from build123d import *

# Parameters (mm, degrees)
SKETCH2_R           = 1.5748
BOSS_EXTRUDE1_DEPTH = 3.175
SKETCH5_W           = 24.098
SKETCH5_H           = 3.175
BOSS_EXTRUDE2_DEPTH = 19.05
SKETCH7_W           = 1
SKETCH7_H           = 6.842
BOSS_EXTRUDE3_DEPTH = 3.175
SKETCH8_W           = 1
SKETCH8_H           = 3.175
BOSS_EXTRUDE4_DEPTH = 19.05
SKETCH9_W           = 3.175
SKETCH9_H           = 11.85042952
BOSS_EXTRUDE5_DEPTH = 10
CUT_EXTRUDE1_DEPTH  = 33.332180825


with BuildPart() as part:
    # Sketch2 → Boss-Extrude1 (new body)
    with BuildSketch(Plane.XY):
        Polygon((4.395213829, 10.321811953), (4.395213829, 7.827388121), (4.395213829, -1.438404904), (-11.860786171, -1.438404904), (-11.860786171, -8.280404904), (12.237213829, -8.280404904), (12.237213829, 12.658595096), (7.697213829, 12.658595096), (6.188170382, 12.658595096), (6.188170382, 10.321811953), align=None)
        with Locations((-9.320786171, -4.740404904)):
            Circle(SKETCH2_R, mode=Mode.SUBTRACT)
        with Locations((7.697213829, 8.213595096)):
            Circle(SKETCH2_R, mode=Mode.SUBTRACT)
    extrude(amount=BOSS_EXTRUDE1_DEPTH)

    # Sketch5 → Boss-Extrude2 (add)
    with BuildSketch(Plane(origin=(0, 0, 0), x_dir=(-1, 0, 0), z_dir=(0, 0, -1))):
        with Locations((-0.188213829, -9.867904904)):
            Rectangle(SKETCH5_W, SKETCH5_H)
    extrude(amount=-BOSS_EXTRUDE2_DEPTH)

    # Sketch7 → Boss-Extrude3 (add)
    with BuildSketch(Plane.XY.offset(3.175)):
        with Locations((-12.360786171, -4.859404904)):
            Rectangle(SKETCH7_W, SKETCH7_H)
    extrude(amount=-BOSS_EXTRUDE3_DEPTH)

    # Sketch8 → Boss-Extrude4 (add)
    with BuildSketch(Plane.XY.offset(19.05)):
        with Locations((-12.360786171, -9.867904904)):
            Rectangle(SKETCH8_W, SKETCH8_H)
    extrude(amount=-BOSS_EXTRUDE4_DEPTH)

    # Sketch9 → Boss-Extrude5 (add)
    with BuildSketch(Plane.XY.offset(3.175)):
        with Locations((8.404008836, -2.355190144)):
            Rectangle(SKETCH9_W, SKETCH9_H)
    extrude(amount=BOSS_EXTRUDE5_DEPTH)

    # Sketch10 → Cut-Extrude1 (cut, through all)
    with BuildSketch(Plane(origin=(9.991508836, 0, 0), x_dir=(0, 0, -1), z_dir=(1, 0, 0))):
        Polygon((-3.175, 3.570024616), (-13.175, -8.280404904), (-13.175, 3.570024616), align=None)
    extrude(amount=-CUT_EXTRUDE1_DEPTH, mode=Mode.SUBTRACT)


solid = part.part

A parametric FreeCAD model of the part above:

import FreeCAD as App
import Part
import Sketcher
from FreeCAD import Vector
Q = App.Units.Quantity

doc = App.newDocument("Part")
body = doc.addObject("PartDesign::Body", "Body")

# Sketch on XY plane
sketch1 = doc.addObject("Sketcher::SketchObject", "Sketch")
body.addObject(sketch1)
sketch1.AttachmentSupport = (doc.XY_Plane, [""])
sketch1.MapMode = "FlatFace"
sketch1.addGeometry([
    Part.LineSegment(Vector(4.4, 10.3, 0), Vector(4.4, -1.4, 0)),  # 0
    Part.LineSegment(Vector(4.4, -1.4, 0), Vector(-11.9, -1.4, 0)),  # 1
    Part.LineSegment(Vector(-11.9, -1.4, 0), Vector(-11.9, -8.3, 0)),  # 2
    Part.LineSegment(Vector(-11.9, -8.3, 0), Vector(12.2, -8.3, 0)),  # 3
    Part.LineSegment(Vector(12.2, -8.3, 0), Vector(12.2, 12.7, 0)),  # 4
    Part.LineSegment(Vector(12.2, 12.7, 0), Vector(6.2, 12.7, 0)),  # 5
    Part.LineSegment(Vector(6.2, 12.7, 0), Vector(6.2, 10.3, 0)),  # 6
    Part.LineSegment(Vector(6.2, 10.3, 0), Vector(4.4, 10.3, 0)),  # 7
    Part.Circle(Vector(-9.3, -4.7, 0), Vector(0, 0, 1), 1.6),  # 8
    Part.Circle(Vector(7.7, 8.2, 0), Vector(0, 0, 1), 1.6),  # 9
], False)
sketch1.addConstraint([
    Sketcher.Constraint("Coincident", 0, 2, 1, 1),
    Sketcher.Constraint("Coincident", 1, 2, 2, 1),
    Sketcher.Constraint("Coincident", 2, 2, 3, 1),
    Sketcher.Constraint("Coincident", 3, 2, 4, 1),
    Sketcher.Constraint("Coincident", 4, 2, 5, 1),
    Sketcher.Constraint("Coincident", 5, 2, 6, 1),
    Sketcher.Constraint("Coincident", 6, 2, 7, 1),
    Sketcher.Constraint("Coincident", 7, 2, 0, 1),
    Sketcher.Constraint("Vertical", 0),
    Sketcher.Constraint("Horizontal", 1),
    Sketcher.Constraint("Vertical", 2),
    Sketcher.Constraint("Horizontal", 3),
    Sketcher.Constraint("Vertical", 4),
    Sketcher.Constraint("Horizontal", 5),
    Sketcher.Constraint("Vertical", 6),
    Sketcher.Constraint("Horizontal", 7),
    Sketcher.Constraint("Equal", 8, 9),
    Sketcher.Constraint("Diameter", 8, Q("0.124 in")),
    Sketcher.Constraint("DistanceX", 1, 2, 1, 1, Q("0.64 in")),
    Sketcher.Constraint("DistanceX", 1, 2, 8, 3, Q("0.1 in")),
    Sketcher.Constraint("DistanceX", 8, 3, 9, 3, Q("0.67 in")),
    Sketcher.Constraint("DistanceY", 8, 3, 9, 3, Q("0.51 in")),
    Sketcher.Constraint("DistanceY", 0, 2, 9, 3, Q("0.38 in")),
    Sketcher.Constraint("DistanceY", 2, 2, -1, 1, Q("0.3260002 in")),
    Sketcher.Constraint("DistanceY", 9, 3, 4, 2, Q("0.175 in")),
    Sketcher.Constraint("DistanceX", 3, 1, 3, 2, Q("24.098 mm")),
    Sketcher.Constraint("DistanceY", 2, 2, 2, 1, Q("6.842 mm")),
    Sketcher.Constraint("DistanceX", 5, 2, 5, 1, Q("6.049043 mm")),
    Sketcher.Constraint("DistanceY", 0, 2, 0, 1, Q("11.760217 mm")),
    Sketcher.Constraint("DistanceX", -1, 1, 5, 2, Q("6.18817 mm")),
])
pad1 = doc.addObject("PartDesign::Pad", "Pad")
body.addObject(pad1)
pad1.Profile = sketch1
pad1.Length = Q("0.125 in")

# Sketch on XY plane
sketch2 = doc.addObject("Sketcher::SketchObject", "Sketch001")
body.addObject(sketch2)
sketch2.AttachmentSupport = (doc.XY_Plane, [""])
sketch2.MapMode = "FlatFace"
sketch2.addGeometry([
    Part.LineSegment(Vector(12.2, -8.3, 0), Vector(12.2, -11.5, 0)),
    Part.LineSegment(Vector(12.2, -11.5, 0), Vector(-11.9, -11.5, 0)),
    Part.LineSegment(Vector(-11.9, -11.5, 0), Vector(-11.9, -8.3, 0)),
    Part.LineSegment(Vector(-11.9, -8.3, 0), Vector(12.2, -8.3, 0)),
], False)
sketch2.addConstraint([
    Sketcher.Constraint("Coincident", 0, 2, 1, 1),
    Sketcher.Constraint("Coincident", 1, 2, 2, 1),
    Sketcher.Constraint("Coincident", 2, 2, 3, 1),
    Sketcher.Constraint("Coincident", 3, 2, 0, 1),
    Sketcher.Constraint("Vertical", 0),
    Sketcher.Constraint("Horizontal", 1),
    Sketcher.Constraint("Vertical", 2),
    Sketcher.Constraint("Horizontal", 3),
    Sketcher.Constraint("DistanceY", 0, 2, 0, 1, Q("0.125 in")),
    Sketcher.Constraint("DistanceY", 0, 2, -1, 1, Q("0.4510002 in")),
    Sketcher.Constraint("DistanceX", 1, 2, 1, 1, Q("24.098 mm")),
    Sketcher.Constraint("DistanceX", -1, 1, 0, 2, Q("12.237214 mm")),
])
pad2 = doc.addObject("PartDesign::Pad", "Pad001")
body.addObject(pad2)
pad2.Profile = sketch2
pad2.Length = Q("0.75 in")

# Sketch on XY plane
sketch3 = doc.addObject("Sketcher::SketchObject", "Sketch002")
body.addObject(sketch3)
sketch3.AttachmentSupport = (doc.XY_Plane, [""])
sketch3.MapMode = "FlatFace"
sketch3.AttachmentOffset = App.Placement(Vector(0, 0, 0.125 * 25.4), App.Rotation())
sketch3.addGeometry([
    Part.LineSegment(Vector(-12.9, -1.4, 0), Vector(-12.9, -8.3, 0)),
    Part.LineSegment(Vector(-12.9, -8.3, 0), Vector(-11.9, -8.3, 0)),
    Part.LineSegment(Vector(-11.9, -8.3, 0), Vector(-11.9, -1.4, 0)),
    Part.LineSegment(Vector(-11.9, -1.4, 0), Vector(-12.9, -1.4, 0)),
], False)
sketch3.addConstraint([
    Sketcher.Constraint("Coincident", 0, 2, 1, 1),
    Sketcher.Constraint("Coincident", 1, 2, 2, 1),
    Sketcher.Constraint("Coincident", 2, 2, 3, 1),
    Sketcher.Constraint("Coincident", 3, 2, 0, 1),
    Sketcher.Constraint("Vertical", 0),
    Sketcher.Constraint("Horizontal", 1),
    Sketcher.Constraint("Vertical", 2),
    Sketcher.Constraint("Horizontal", 3),
    Sketcher.Constraint("DistanceY", 0, 2, -1, 1, Q("0.3260002 in")),
    Sketcher.Constraint("DistanceX", 1, 1, 1, 2, Q("1 mm")),
    Sketcher.Constraint("DistanceY", 0, 2, 0, 1, Q("6.842 mm")),
    Sketcher.Constraint("DistanceX", 0, 2, -1, 1, Q("12.860786 mm")),
])
pad3 = doc.addObject("PartDesign::Pad", "Pad002")
body.addObject(pad3)
pad3.Profile = sketch3
pad3.Length = Q("0.125 in")
pad3.Reversed = True

# Sketch on XY plane
sketch4 = doc.addObject("Sketcher::SketchObject", "Sketch003")
body.addObject(sketch4)
sketch4.AttachmentSupport = (doc.XY_Plane, [""])
sketch4.MapMode = "FlatFace"
sketch4.AttachmentOffset = App.Placement(Vector(0, 0, 0.75 * 25.4), App.Rotation())
sketch4.addGeometry([
    Part.LineSegment(Vector(-12.9, -8.3, 0), Vector(-12.9, -11.5, 0)),
    Part.LineSegment(Vector(-12.9, -11.5, 0), Vector(-11.9, -11.5, 0)),
    Part.LineSegment(Vector(-11.9, -11.5, 0), Vector(-11.9, -8.3, 0)),
    Part.LineSegment(Vector(-11.9, -8.3, 0), Vector(-12.9, -8.3, 0)),
], False)
sketch4.addConstraint([
    Sketcher.Constraint("Coincident", 0, 2, 1, 1),
    Sketcher.Constraint("Coincident", 1, 2, 2, 1),
    Sketcher.Constraint("Coincident", 2, 2, 3, 1),
    Sketcher.Constraint("Coincident", 3, 2, 0, 1),
    Sketcher.Constraint("Vertical", 0),
    Sketcher.Constraint("Horizontal", 1),
    Sketcher.Constraint("Vertical", 2),
    Sketcher.Constraint("Horizontal", 3),
    Sketcher.Constraint("DistanceY", 0, 2, 0, 1, Q("0.125 in")),
    Sketcher.Constraint("DistanceY", 0, 2, -1, 1, Q("0.4510002 in")),
    Sketcher.Constraint("DistanceX", 1, 1, 1, 2, Q("1 mm")),
    Sketcher.Constraint("DistanceX", 0, 2, -1, 1, Q("12.860786 mm")),
])
pad4 = doc.addObject("PartDesign::Pad", "Pad003")
body.addObject(pad4)
pad4.Profile = sketch4
pad4.Length = Q("0.75 in")
pad4.Reversed = True

# Sketch on XY plane
sketch5 = doc.addObject("Sketcher::SketchObject", "Sketch004")
body.addObject(sketch5)
sketch5.AttachmentSupport = (doc.XY_Plane, [""])
sketch5.MapMode = "FlatFace"
sketch5.AttachmentOffset = App.Placement(Vector(0, 0, 0.125 * 25.4), App.Rotation())
sketch5.addGeometry([
    Part.LineSegment(Vector(6.8, 3.6, 0), Vector(6.8, -8.3, 0)),
    Part.LineSegment(Vector(6.8, -8.3, 0), Vector(10, -8.3, 0)),
    Part.LineSegment(Vector(10, -8.3, 0), Vector(10, 3.6, 0)),
    Part.LineSegment(Vector(10, 3.6, 0), Vector(6.8, 3.6, 0)),
], False)
sketch5.addConstraint([
    Sketcher.Constraint("Coincident", 0, 2, 1, 1),
    Sketcher.Constraint("Coincident", 1, 2, 2, 1),
    Sketcher.Constraint("Coincident", 2, 2, 3, 1),
    Sketcher.Constraint("Coincident", 3, 2, 0, 1),
    Sketcher.Constraint("Vertical", 0),
    Sketcher.Constraint("Horizontal", 1),
    Sketcher.Constraint("Vertical", 2),
    Sketcher.Constraint("Horizontal", 3),
    Sketcher.Constraint("DistanceX", 1, 1, 1, 2, Q("0.125 in")),
    Sketcher.Constraint("DistanceY", 0, 2, -1, 1, Q("0.3260002 in")),
    Sketcher.Constraint("DistanceY", 0, 2, 0, 1, Q("11.85043 mm")),
    Sketcher.Constraint("DistanceX", -1, 1, 0, 2, Q("6.816509 mm")),
])
pad5 = doc.addObject("PartDesign::Pad", "Pad004")
body.addObject(pad5)
pad5.Profile = sketch5
pad5.Length = 10

# Sketch on YZ plane
sketch6 = doc.addObject("Sketcher::SketchObject", "Sketch005")
body.addObject(sketch6)
sketch6.AttachmentSupport = (doc.YZ_Plane, [""])
sketch6.MapMode = "FlatFace"
sketch6.AttachmentOffset = App.Placement(Vector(0, 0, 9.991509), App.Rotation())
sketch6.addGeometry([
    Part.LineSegment(Vector(-8, 13, 0), Vector(4, 3, 0)),
    Part.LineSegment(Vector(4, 3, 0), Vector(4, 13, 0)),
    Part.LineSegment(Vector(4, 13, 0), Vector(-8, 13, 0)),
], False)
sketch6.addConstraint([
    Sketcher.Constraint("Coincident", 0, 2, 1, 1),
    Sketcher.Constraint("Coincident", 1, 2, 2, 1),
    Sketcher.Constraint("Coincident", 2, 2, 0, 1),
    Sketcher.Constraint("Vertical", 1),
    Sketcher.Constraint("Horizontal", 2),
    Sketcher.Constraint("DistanceY", -1, 1, 0, 2, Q("0.125 in")),
    Sketcher.Constraint("DistanceX", 2, 2, -1, 1, Q("0.3260002 in")),
    Sketcher.Constraint("DistanceY", 1, 1, 1, 2, Q("10 mm")),
    Sketcher.Constraint("DistanceX", 2, 2, 2, 1, Q("11.85043 mm")),
])
pocket1 = doc.addObject("PartDesign::Pocket", "Pocket")
body.addObject(pocket1)
pocket1.Profile = sketch6
pocket1.Type = "ThroughAll"

doc.recompute()
